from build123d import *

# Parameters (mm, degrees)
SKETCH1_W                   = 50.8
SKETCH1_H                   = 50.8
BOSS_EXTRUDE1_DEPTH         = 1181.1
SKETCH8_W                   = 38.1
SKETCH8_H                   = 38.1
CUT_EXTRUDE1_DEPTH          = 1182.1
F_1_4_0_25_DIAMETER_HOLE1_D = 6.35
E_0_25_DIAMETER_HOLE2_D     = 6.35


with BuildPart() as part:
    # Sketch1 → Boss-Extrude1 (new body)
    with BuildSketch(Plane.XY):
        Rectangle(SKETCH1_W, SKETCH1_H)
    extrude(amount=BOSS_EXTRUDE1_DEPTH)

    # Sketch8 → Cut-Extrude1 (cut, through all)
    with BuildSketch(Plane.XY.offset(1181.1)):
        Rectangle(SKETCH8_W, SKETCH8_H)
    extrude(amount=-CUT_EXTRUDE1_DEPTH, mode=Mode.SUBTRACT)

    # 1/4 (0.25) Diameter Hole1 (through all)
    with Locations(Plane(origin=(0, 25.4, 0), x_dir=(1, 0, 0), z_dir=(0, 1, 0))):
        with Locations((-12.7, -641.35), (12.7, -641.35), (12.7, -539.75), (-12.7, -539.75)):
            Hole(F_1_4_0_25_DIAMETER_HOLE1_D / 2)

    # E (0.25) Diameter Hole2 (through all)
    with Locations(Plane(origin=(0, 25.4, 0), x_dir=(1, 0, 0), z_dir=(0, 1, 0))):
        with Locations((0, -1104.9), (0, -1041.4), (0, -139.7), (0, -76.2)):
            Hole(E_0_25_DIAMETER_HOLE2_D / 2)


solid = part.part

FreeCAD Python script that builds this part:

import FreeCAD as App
import Part
import Sketcher

V = App.Vector
Q = App.Units.Quantity


def add_polygon(sketch, points):
    """Adds a closed chain of lines whose ends are joined by coincident constraints."""
    first, n = sketch.GeometryCount, len(points)
    for a, b in zip(points, points[1:] + points[:1]):
        sketch.addGeometry(Part.LineSegment(App.Vector(*a, 0), App.Vector(*b, 0)), False)
    for i in range(n):
        sketch.addConstraint(Sketcher.Constraint("Coincident", first + i, 2, first + (i + 1) % n, 1))

doc = App.newDocument("Part")
body = doc.addObject("PartDesign::Body", "Body")

sketch1 = body.newObject("Sketcher::SketchObject", "Sketch")
sketch1.AttachmentSupport = (doc.getObject("XY_Plane"), [""])
sketch1.MapMode = "FlatFace"
add_polygon(sketch1, [(-25, 25), (-25, -25), (25, -25), (25, 25)])
sketch1.addConstraint([
    Sketcher.Constraint("Vertical", 0),
    Sketcher.Constraint("Horizontal", 1),
    Sketcher.Constraint("Vertical", 2),
    Sketcher.Constraint("Horizontal", 3),
    Sketcher.Constraint("Symmetric", 0, 2, 2, 2, -1, 1),
    Sketcher.Constraint("Equal", 3, 0),
    Sketcher.Constraint("DistanceX", 1, 1, 1, 2, Q("2 in")),
])
pad1 = body.newObject("PartDesign::Pad", "Pad")
pad1.Profile = sketch1
pad1.Length = Q("46.5 in")

sketch2 = body.newObject("Sketcher::SketchObject", "Sketch001")
sketch2.AttachmentSupport = (doc.getObject("XY_Plane"), [""])
sketch2.MapMode = "FlatFace"
sketch2.AttachmentOffset = App.Placement(V(0, 0, 46.5 * 25.4), App.Rotation())
add_polygon(sketch2, [(-19, 19), (-19, -19), (19, -19), (19, 19)])
sketch2.addConstraint([
    Sketcher.Constraint("Vertical", 0),
    Sketcher.Constraint("Horizontal", 1),
    Sketcher.Constraint("Vertical", 2),
    Sketcher.Constraint("Horizontal", 3),
    Sketcher.Constraint("Symmetric", 0, 2, 2, 2, -1, 1),
    Sketcher.Constraint("Equal", 3, 0),
    Sketcher.Constraint("DistanceX", 1, 1, 1, 2, Q("1.5 in")),
])
pocket1 = body.newObject("PartDesign::Pocket", "Pocket")
pocket1.Profile = sketch2
pocket1.Type = "ThroughAll"

sketch3 = body.newObject("Sketcher::SketchObject", "Sketch002")
sketch3.AttachmentSupport = (doc.getObject("XZ_Plane"), [""])
sketch3.MapMode = "FlatFace"
sketch3.AttachmentOffset = App.Placement(V(0, 0, -1 * 25.4), App.Rotation())
sketch3.addGeometry([
    Part.Circle(V(-12.7, 641.4, 0), V(0, 0, 1), 3.2),
    Part.Circle(V(12.7, 641.4, 0), V(0, 0, 1), 3.2),
    Part.Circle(V(12.7, 539.8, 0), V(0, 0, 1), 3.2),
    Part.Circle(V(-12.7, 539.8, 0), V(0, 0, 1), 3.2),
], False)
sketch3.addConstraint([
    Sketcher.Constraint("Equal", 0, 1),
    Sketcher.Constraint("Equal", 1, 2),
    Sketcher.Constraint("Equal", 2, 3),
    Sketcher.Constraint("Symmetric", 0, 3, 1, 3, -2),
    Sketcher.Constraint("Symmetric", 2, 3, 3, 3, -2),
    Sketcher.Constraint("Vertical", 1, 3, 2, 3),
    Sketcher.Constraint("Diameter", 0, Q("0.25 in")),
    Sketcher.Constraint("DistanceX", 0, 3, 1, 3, Q("1 in")),
    Sketcher.Constraint("DistanceY", 2, 3, 1, 3, Q("4 in")),
    Sketcher.Constraint("DistanceY", -1, 1, 0, 3, Q("25.25 in")),
])
doc.recompute()
hole = body.newObject("PartDesign::Hole", "Hole")
hole.Profile = sketch3
hole.ThreadType = "None"
hole.Diameter = Q("0.25 in")
hole.DepthType = "ThroughAll"
hole.Reversed = True

sketch4 = body.newObject("Sketcher::SketchObject", "Sketch003")
sketch4.AttachmentSupport = (doc.getObject("XZ_Plane"), [""])
sketch4.MapMode = "FlatFace"
sketch4.AttachmentOffset = App.Placement(V(0, 0, -1 * 25.4), App.Rotation())
sketch4.addGeometry([
    Part.Circle(V(0, 1104.9, 0), V(0, 0, 1), 3.2),
    Part.Circle(V(0, 1041.4, 0), V(0, 0, 1), 3.2),
    Part.Circle(V(0, 139.7, 0), V(0, 0, 1), 3.2),
    Part.Circle(V(0, 76.2, 0), V(0, 0, 1), 3.2),
], False)
sketch4.addConstraint([
    Sketcher.Constraint("Equal", 0, 1),
    Sketcher.Constraint("Equal", 1, 2),
    Sketcher.Constraint("Equal", 2, 3),
    Sketcher.Constraint("PointOnObject", 0, 3, -2),
    Sketcher.Constraint("PointOnObject", 1, 3, -2),
    Sketcher.Constraint("PointOnObject", 2, 3, -2),
    Sketcher.Constraint("PointOnObject", 3, 3, -2),
    Sketcher.Constraint("Diameter", 0, Q("0.25 in")),
    Sketcher.Constraint("DistanceY", -1, 1, 1, 3, Q("41 in")),
    Sketcher.Constraint("DistanceY", -1, 1, 3, 3, Q("3 in")),
    Sketcher.Constraint("DistanceY", 2, 3, 0, 3, Q("38 in")),
    Sketcher.Constraint("DistanceY", -1, 1, 0, 3, Q("43.5 in")),
])
doc.recompute()
hole2 = body.newObject("PartDesign::Hole", "Hole001")
hole2.Profile = sketch4
hole2.ThreadType = "None"
hole2.Diameter = Q("0.25 in")
hole2.DepthType = "ThroughAll"
hole2.Reversed = True

doc.recompute()
